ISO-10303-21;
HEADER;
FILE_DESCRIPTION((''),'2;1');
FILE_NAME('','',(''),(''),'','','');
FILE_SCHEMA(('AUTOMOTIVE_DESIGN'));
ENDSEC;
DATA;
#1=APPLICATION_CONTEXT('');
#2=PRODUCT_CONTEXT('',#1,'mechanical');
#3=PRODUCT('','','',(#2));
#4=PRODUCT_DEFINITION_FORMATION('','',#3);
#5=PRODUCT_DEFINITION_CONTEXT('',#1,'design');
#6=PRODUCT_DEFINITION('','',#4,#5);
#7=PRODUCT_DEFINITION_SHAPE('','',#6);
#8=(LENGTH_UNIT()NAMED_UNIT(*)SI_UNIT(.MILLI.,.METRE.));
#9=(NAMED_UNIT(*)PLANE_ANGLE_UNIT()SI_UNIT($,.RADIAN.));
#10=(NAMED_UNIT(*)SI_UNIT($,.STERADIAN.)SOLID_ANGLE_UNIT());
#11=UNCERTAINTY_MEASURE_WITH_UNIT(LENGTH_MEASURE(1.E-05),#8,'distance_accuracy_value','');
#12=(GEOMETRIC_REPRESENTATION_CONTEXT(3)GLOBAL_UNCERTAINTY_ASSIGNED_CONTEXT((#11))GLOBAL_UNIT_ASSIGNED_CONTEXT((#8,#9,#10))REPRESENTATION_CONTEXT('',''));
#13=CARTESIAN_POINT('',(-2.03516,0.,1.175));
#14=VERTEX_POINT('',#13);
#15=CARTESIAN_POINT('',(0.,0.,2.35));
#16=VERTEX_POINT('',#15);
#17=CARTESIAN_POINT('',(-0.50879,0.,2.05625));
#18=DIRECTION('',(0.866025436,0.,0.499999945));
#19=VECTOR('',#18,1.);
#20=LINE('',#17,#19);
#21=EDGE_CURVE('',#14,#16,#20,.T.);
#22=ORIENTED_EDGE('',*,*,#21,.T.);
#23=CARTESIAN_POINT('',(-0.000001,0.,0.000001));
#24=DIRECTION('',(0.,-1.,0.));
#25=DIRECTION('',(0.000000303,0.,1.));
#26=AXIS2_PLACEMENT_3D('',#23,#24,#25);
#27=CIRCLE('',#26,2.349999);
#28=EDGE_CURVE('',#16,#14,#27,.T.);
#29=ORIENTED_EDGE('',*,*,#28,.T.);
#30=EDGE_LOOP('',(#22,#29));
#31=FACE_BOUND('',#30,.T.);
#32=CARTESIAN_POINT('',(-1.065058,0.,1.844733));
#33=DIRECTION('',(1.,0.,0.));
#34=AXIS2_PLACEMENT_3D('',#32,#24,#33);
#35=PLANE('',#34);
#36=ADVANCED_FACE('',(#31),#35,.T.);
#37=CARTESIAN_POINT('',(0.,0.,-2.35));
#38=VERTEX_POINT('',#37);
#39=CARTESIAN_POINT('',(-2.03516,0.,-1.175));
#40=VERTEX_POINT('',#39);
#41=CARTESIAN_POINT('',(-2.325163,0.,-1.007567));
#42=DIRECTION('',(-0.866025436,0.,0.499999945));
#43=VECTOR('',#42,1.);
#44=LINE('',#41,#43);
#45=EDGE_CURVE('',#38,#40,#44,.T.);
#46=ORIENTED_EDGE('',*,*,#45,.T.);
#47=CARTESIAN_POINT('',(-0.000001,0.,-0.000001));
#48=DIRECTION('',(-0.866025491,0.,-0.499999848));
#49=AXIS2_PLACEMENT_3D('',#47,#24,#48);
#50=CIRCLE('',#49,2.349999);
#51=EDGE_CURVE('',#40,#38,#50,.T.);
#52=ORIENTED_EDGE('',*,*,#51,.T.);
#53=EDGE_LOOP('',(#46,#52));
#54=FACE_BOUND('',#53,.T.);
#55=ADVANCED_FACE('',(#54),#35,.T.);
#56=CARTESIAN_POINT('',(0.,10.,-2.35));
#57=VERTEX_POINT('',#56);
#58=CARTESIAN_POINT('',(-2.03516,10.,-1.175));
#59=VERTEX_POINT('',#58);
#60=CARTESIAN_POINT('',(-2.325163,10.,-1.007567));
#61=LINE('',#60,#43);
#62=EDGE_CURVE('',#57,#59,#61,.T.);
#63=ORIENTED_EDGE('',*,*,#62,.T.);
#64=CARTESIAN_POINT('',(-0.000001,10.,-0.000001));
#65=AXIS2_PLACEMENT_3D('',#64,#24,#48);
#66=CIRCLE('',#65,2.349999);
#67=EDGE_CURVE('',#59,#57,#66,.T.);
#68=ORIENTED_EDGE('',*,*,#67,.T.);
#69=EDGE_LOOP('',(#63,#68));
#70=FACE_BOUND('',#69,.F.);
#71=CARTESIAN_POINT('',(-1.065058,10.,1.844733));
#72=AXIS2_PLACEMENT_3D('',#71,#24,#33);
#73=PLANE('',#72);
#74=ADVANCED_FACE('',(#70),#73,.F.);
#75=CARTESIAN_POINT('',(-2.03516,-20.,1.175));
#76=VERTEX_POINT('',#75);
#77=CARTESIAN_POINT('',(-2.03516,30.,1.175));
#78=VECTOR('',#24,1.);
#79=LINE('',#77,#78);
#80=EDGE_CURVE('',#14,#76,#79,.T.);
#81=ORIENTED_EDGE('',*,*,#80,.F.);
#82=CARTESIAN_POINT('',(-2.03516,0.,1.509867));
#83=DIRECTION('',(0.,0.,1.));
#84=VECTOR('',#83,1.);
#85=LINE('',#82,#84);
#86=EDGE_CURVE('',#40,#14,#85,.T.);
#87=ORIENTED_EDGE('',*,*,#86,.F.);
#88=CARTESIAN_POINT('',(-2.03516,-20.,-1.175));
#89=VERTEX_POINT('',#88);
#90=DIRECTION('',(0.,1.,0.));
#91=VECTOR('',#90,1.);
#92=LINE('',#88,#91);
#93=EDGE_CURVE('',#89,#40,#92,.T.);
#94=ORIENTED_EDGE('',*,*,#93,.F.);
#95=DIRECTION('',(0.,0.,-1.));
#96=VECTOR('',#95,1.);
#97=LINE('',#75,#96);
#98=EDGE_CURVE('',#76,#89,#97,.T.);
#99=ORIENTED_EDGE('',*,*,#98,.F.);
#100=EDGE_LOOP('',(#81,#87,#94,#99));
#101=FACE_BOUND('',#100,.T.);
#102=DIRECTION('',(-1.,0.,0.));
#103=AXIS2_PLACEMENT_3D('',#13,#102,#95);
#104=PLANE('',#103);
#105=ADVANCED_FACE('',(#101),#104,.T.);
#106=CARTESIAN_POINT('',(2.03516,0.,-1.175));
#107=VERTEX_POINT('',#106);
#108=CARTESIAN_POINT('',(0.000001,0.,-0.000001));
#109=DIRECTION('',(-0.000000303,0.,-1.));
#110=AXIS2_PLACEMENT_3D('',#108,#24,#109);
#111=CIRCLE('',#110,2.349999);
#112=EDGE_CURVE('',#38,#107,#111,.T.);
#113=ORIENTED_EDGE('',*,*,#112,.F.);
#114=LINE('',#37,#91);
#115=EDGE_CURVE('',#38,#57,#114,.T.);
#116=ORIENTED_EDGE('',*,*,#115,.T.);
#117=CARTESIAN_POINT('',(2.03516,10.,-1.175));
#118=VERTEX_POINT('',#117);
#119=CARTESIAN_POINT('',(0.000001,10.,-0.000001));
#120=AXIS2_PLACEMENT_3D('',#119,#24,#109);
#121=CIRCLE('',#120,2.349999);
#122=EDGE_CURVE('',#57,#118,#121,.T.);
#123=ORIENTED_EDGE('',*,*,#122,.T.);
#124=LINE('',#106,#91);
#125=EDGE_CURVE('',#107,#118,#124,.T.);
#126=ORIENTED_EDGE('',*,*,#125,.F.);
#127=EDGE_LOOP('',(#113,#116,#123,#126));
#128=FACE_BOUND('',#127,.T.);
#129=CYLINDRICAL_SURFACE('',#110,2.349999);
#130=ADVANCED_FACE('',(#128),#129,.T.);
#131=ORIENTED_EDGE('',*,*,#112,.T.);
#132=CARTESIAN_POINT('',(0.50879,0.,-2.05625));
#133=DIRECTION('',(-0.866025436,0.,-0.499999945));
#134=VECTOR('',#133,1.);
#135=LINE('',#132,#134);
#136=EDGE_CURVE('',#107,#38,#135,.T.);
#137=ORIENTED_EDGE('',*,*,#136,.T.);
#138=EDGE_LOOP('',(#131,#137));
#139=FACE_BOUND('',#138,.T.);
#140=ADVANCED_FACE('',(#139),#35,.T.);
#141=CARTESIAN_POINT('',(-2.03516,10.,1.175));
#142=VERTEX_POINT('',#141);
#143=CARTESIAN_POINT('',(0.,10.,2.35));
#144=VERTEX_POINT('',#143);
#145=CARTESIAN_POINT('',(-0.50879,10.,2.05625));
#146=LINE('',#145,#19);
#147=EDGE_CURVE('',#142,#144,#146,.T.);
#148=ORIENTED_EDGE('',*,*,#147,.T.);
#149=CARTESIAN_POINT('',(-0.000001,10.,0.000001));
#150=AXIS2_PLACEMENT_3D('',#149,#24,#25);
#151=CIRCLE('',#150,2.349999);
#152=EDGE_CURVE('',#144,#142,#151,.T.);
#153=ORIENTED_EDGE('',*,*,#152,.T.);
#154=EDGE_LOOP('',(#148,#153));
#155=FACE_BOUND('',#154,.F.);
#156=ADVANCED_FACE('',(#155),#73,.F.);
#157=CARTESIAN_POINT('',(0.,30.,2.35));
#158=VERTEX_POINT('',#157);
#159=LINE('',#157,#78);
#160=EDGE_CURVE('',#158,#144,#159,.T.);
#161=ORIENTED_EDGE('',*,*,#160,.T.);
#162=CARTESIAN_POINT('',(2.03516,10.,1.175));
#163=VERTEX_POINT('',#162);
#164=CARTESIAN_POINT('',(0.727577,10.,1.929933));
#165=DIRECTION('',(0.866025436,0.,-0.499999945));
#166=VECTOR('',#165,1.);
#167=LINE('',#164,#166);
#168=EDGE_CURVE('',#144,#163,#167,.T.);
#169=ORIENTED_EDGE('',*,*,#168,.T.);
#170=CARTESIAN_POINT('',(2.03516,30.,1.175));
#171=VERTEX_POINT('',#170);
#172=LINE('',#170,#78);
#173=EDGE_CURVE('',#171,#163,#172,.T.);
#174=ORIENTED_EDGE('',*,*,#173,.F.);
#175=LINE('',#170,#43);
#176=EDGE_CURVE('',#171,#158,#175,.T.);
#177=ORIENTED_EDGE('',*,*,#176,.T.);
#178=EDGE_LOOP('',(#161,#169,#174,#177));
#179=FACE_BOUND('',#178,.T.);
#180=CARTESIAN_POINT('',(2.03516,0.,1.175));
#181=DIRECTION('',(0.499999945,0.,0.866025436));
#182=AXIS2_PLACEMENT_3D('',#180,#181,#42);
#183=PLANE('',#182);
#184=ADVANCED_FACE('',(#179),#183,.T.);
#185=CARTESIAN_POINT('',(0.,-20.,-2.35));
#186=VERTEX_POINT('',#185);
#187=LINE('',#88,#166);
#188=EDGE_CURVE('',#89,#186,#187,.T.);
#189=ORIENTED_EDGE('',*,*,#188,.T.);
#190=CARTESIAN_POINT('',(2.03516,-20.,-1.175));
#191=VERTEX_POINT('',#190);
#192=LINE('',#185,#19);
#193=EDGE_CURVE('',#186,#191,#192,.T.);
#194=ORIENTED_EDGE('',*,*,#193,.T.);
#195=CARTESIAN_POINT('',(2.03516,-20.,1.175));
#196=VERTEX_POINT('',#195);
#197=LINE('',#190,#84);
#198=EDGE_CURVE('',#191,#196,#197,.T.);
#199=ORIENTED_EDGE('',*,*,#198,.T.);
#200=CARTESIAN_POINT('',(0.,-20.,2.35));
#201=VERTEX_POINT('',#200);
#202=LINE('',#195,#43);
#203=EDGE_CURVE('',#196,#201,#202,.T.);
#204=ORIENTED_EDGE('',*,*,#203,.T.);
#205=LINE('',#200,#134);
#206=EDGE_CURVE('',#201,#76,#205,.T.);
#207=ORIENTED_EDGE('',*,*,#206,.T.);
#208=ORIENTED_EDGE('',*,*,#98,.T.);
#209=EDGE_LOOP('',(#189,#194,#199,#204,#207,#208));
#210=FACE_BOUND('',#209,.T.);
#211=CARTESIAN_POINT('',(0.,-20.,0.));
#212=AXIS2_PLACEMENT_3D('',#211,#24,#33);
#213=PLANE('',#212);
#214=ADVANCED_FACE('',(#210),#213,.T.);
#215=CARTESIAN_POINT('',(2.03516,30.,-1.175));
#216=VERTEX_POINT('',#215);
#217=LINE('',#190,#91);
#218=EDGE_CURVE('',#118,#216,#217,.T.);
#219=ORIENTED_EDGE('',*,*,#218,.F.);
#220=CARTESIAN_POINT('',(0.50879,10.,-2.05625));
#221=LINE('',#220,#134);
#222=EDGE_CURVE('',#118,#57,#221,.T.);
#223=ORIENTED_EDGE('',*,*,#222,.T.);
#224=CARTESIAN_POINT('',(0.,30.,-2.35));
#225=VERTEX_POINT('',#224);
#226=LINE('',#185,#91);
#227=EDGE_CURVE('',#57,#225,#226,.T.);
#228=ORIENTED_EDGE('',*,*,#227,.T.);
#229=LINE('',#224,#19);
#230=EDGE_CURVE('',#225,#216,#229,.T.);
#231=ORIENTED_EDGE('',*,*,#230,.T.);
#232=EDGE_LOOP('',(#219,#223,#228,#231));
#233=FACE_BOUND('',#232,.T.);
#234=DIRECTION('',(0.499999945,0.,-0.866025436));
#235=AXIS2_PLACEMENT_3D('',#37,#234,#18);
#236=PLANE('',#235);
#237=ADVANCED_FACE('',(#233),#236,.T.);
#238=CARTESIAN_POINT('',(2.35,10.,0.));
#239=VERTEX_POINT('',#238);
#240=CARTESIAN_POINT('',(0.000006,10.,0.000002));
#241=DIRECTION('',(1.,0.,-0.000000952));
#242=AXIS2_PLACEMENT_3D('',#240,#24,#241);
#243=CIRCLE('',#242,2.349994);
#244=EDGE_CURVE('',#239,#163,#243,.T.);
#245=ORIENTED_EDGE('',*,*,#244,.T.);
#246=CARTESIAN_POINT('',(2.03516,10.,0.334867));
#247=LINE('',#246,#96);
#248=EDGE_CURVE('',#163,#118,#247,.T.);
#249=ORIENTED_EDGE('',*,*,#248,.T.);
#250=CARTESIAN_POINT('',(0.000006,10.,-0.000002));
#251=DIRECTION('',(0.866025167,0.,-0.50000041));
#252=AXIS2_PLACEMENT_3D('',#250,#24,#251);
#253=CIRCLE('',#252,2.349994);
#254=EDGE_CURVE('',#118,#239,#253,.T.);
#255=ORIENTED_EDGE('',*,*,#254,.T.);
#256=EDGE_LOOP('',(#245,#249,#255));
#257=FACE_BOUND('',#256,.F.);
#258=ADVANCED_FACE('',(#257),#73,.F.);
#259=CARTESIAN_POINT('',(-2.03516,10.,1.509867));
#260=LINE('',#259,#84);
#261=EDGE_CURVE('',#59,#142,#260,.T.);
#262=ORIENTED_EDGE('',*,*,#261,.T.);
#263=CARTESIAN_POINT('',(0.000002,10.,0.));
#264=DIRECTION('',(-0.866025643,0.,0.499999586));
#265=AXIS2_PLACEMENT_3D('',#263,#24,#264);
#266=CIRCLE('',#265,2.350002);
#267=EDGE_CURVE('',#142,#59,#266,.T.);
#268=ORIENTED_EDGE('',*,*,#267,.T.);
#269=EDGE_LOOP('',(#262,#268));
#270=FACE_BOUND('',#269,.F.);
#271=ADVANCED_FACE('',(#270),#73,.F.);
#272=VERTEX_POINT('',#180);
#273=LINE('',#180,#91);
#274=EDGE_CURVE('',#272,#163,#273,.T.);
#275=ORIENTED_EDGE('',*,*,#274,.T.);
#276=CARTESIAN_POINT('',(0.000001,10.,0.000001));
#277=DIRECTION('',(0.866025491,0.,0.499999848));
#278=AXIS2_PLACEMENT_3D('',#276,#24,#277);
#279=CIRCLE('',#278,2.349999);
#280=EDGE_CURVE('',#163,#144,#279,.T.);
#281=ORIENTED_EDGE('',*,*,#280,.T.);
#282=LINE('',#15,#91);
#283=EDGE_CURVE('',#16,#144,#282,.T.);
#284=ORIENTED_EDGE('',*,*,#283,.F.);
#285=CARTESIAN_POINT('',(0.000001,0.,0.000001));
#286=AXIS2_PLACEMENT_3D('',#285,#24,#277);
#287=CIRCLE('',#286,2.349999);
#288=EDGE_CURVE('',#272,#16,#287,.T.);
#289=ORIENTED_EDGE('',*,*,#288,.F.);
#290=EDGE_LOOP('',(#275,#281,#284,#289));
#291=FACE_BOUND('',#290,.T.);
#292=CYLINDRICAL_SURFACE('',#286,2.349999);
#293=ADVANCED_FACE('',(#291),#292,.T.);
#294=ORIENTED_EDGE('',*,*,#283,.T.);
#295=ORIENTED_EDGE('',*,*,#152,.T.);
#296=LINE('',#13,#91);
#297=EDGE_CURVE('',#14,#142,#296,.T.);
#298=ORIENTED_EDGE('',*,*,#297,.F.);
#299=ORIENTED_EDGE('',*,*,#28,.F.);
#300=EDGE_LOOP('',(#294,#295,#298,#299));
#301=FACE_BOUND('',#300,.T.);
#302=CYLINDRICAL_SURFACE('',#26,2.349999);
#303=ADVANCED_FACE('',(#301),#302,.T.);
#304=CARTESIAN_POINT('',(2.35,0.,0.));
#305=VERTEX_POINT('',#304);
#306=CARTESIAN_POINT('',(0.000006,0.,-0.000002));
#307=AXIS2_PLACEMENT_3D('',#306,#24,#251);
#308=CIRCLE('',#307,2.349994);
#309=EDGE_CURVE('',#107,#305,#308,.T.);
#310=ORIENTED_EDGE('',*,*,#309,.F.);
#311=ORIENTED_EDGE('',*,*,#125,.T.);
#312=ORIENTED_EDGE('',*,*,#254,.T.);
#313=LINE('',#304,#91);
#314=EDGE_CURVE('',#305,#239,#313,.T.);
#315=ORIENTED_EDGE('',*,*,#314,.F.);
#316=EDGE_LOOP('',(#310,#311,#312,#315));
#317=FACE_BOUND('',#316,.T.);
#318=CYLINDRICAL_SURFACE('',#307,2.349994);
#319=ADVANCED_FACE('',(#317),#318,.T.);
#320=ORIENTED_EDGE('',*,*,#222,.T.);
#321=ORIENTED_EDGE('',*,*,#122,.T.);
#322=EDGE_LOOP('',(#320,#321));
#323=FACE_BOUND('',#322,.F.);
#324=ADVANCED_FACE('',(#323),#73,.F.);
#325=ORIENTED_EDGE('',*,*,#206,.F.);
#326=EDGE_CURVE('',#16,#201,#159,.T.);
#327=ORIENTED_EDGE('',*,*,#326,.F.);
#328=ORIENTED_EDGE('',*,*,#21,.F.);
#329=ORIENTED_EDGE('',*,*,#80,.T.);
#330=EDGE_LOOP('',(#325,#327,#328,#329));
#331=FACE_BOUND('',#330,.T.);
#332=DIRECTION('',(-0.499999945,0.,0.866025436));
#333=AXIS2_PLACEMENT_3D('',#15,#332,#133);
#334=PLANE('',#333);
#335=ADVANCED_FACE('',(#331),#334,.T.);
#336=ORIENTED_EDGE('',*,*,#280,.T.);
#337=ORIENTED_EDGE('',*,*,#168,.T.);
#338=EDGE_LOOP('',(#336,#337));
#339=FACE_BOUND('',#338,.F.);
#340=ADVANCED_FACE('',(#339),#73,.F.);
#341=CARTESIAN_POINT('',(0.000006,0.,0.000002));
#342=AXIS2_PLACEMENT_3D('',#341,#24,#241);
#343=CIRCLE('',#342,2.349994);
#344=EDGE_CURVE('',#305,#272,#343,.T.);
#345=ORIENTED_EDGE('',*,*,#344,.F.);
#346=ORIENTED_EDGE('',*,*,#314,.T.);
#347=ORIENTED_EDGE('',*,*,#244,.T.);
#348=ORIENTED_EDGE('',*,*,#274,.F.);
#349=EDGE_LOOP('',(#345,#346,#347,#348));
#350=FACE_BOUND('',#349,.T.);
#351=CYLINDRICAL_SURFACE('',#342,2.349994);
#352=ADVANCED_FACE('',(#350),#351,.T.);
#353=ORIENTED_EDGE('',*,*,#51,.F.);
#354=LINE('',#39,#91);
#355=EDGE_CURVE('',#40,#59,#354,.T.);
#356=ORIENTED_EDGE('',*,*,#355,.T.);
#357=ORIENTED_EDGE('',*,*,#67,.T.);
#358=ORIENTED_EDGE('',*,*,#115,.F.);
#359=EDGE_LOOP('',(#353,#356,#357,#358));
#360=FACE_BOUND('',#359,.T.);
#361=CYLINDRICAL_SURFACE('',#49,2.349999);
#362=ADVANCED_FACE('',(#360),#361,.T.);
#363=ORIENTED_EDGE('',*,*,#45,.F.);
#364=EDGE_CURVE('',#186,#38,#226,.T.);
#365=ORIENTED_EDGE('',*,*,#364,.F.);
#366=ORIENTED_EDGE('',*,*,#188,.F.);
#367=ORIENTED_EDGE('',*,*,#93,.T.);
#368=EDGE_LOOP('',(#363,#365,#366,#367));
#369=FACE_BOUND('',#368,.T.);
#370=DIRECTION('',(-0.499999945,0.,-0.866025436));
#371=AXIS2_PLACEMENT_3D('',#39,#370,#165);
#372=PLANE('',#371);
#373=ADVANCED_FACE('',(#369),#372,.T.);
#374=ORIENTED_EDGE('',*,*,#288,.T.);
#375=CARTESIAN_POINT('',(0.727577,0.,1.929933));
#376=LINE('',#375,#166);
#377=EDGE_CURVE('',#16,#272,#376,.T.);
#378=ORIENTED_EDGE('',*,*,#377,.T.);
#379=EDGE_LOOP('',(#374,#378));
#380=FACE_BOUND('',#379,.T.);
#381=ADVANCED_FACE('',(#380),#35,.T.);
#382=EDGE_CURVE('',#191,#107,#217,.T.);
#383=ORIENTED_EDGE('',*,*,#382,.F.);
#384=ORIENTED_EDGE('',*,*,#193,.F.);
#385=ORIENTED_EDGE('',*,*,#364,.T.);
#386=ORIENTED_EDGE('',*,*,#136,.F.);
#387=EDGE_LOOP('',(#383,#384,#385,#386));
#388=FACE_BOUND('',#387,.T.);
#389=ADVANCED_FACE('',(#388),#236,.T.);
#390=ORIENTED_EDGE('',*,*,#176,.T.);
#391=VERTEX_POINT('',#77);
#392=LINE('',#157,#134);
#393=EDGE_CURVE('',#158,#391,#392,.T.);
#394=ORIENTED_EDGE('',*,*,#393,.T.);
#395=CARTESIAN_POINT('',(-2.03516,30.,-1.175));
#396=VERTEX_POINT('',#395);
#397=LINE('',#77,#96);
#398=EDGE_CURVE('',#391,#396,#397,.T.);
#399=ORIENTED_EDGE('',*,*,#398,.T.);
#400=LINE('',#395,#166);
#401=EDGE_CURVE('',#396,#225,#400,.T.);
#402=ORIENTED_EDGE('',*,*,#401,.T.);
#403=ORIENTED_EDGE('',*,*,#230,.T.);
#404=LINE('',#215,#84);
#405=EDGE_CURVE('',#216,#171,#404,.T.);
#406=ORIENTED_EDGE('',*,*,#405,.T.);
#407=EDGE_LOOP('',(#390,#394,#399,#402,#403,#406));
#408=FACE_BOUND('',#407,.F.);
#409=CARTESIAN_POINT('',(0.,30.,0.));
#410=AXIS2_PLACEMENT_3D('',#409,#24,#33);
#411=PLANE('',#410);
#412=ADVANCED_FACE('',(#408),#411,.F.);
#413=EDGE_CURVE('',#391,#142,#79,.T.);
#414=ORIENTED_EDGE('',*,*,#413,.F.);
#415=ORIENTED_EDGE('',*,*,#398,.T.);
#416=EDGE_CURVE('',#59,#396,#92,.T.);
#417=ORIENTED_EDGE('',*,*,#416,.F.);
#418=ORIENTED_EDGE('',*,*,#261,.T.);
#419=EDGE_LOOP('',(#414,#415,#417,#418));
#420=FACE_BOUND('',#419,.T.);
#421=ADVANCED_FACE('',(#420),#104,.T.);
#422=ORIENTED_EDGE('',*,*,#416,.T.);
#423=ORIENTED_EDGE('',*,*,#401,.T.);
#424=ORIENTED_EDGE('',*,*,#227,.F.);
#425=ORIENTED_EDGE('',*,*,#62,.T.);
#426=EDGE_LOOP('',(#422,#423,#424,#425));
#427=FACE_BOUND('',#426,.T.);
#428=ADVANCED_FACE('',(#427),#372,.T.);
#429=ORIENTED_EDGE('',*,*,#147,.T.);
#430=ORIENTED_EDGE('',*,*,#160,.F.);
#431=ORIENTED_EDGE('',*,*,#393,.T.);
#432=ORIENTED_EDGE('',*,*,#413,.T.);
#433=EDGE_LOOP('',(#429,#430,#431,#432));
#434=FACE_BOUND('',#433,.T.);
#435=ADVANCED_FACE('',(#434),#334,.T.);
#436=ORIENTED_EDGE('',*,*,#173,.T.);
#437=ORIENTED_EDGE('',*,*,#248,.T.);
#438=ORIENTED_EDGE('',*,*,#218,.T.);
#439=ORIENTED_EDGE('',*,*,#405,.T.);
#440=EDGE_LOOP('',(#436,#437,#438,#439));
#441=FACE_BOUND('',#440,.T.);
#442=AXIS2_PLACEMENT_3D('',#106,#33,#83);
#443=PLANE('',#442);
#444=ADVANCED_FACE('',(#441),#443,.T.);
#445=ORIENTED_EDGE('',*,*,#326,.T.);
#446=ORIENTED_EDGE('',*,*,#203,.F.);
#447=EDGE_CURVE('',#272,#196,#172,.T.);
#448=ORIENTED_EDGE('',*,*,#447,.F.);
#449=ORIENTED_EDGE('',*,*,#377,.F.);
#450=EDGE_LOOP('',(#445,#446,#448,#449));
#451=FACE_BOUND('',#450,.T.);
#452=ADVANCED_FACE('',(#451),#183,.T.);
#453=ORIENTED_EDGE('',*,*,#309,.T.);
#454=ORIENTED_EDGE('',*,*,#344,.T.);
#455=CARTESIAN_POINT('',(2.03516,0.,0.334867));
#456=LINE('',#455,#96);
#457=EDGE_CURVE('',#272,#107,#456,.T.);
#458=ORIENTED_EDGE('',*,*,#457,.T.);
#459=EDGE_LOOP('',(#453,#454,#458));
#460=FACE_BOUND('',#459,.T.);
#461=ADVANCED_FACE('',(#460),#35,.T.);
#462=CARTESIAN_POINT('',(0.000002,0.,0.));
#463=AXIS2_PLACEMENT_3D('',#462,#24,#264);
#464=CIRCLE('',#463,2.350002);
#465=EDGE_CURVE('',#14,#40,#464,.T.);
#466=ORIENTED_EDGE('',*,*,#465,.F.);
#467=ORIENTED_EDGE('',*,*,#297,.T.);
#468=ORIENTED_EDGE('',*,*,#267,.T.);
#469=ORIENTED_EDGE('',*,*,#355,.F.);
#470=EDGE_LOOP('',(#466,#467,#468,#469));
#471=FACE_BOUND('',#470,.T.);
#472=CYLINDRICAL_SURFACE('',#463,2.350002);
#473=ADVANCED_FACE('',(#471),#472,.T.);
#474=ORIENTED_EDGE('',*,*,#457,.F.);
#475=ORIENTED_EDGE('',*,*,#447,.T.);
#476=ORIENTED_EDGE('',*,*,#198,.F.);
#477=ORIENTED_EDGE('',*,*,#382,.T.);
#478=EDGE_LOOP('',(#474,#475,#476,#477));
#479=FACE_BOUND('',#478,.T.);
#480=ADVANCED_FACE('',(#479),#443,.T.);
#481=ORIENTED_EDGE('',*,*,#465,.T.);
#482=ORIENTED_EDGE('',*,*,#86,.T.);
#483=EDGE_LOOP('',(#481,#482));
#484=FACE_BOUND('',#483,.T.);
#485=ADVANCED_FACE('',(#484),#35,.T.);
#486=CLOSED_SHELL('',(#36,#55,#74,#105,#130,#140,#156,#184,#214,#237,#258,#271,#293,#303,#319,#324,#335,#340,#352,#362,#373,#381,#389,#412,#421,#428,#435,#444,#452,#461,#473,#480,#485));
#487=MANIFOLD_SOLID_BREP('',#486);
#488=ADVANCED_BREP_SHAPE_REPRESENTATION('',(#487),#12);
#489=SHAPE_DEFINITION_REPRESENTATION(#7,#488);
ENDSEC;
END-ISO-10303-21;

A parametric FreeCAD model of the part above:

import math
import FreeCAD as App
import Part
import Sketcher
from FreeCAD import Vector
Q = App.Units.Quantity

doc = App.newDocument("Part")
body = doc.addObject("PartDesign::Body", "Body")

sketch1 = body.newObject("Sketcher::SketchObject", "Sketch")
sketch1.AttachmentSupport = (doc.getObject("XZ_Plane"), [""])
sketch1.MapMode = "FlatFace"
sketch1.addGeometry([
    Part.LineSegment(Vector(2, -1.2, 0), Vector(2, 1.2, 0)),
    Part.LineSegment(Vector(2, 1.2, 0), Vector(0, 2.4, 0)),
    Part.LineSegment(Vector(0, 2.4, 0), Vector(-2, 1.2, 0)),
    Part.LineSegment(Vector(-2, 1.2, 0), Vector(-2, -1.2, 0)),
    Part.LineSegment(Vector(-2, -1.2, 0), Vector(0, -2.4, 0)),
    Part.LineSegment(Vector(0, -2.4, 0), Vector(2, -1.2, 0)),
], False)
sketch1.addConstraint([
    Sketcher.Constraint("Coincident", 0, 2, 1, 1),
    Sketcher.Constraint("Coincident", 1, 2, 2, 1),
    Sketcher.Constraint("Coincident", 2, 2, 3, 1),
    Sketcher.Constraint("Coincident", 3, 2, 4, 1),
    Sketcher.Constraint("Coincident", 4, 2, 5, 1),
    Sketcher.Constraint("Coincident", 5, 2, 0, 1),
    Sketcher.Constraint("Vertical", 0),
    Sketcher.Constraint("Vertical", 3),
    Sketcher.Constraint("Symmetric", 0, 2, 3, 2, -1, 1),
    Sketcher.Constraint("Symmetric", 1, 2, 4, 2, -1, 1),
    Sketcher.Constraint("PointOnObject", 1, 2, -2),
    Sketcher.Constraint("Parallel", 2, 5),
    Sketcher.Constraint("Horizontal", 0, 2, 2, 2),
    Sketcher.Constraint("Angle", 1, Q("150.000004 deg")),
    Sketcher.Constraint("DistanceY", 0, 1, 0, 2, 2.35),
    Sketcher.Constraint("DistanceY", 4, 2, 1, 2, 4.7),
])
pad1 = body.newObject("PartDesign::Pad", "Pad")
pad1.Profile = sketch1
pad1.Type = "TwoLengths"
pad1.Length = 20
pad1.Length2 = 30

sketch2 = body.newObject("Sketcher::SketchObject", "Sketch001")
sketch2.AttachmentSupport = (doc.getObject("XZ_Plane"), [""])
sketch2.MapMode = "FlatFace"
sketch2.addGeometry([
    Part.ArcOfCircle(Part.Circle(Vector(0, 0, 0), Vector(0, 0, 1), 2.3), math.radians(90), math.radians(150)),
    Part.ArcOfCircle(Part.Circle(Vector(0, 0, 0), Vector(0, 0, 1), 2.4), math.radians(150), math.radians(210)),
    Part.ArcOfCircle(Part.Circle(Vector(0, 0, 0), Vector(0, 0, 1), 2.3), math.radians(-150), math.radians(-90)),
    Part.ArcOfCircle(Part.Circle(Vector(0, 0, 0), Vector(0, 0, 1), 2.3), math.radians(-90), math.radians(-30)),
    Part.ArcOfCircle(Part.Circle(Vector(0, 0, 0), Vector(0, 0, 1), 2.3), math.radians(-30), math.radians(0)),
    Part.ArcOfCircle(Part.Circle(Vector(0, 0, 0), Vector(0, 0, 1), 2.3), math.radians(0), math.radians(30)),
    Part.ArcOfCircle(Part.Circle(Vector(0, 0, 0), Vector(0, 0, 1), 2.3), math.radians(30), math.radians(90)),
], False)
sketch2.addConstraint([
    Sketcher.Constraint("Tangent", 0, 2, 1, 1),
    Sketcher.Constraint("Tangent", 1, 2, 2, 1),
    Sketcher.Constraint("Tangent", 2, 2, 3, 1),
    Sketcher.Constraint("Tangent", 3, 2, 4, 1),
    Sketcher.Constraint("Tangent", 4, 2, 5, 1),
    Sketcher.Constraint("Tangent", 5, 2, 6, 1),
    Sketcher.Constraint("Tangent", 6, 2, 0, 1),
    Sketcher.Constraint("Coincident", 0, 3, -1, 1),
    Sketcher.Constraint("Coincident", 2, 3, -1, 1),
    Sketcher.Constraint("Coincident", 4, 3, -1, 1),
    Sketcher.Constraint("PointOnObject", 2, 2, -2),
    Sketcher.Constraint("PointOnObject", 4, 2, -1),
    Sketcher.Constraint("PointOnObject", 6, 2, -2),
    Sketcher.Constraint("Horizontal", 1, 2, 3, 2),
    Sketcher.Constraint("Horizontal", 0, 2, 5, 2),
    Sketcher.Constraint("Vertical", 0, 2, 1, 2),
    Sketcher.Constraint("Radius", 0, 2.349999),
    Sketcher.Constraint("DistanceY", 1, 2, 0, 2, 2.35),
])
pad2 = body.newObject("PartDesign::Pad", "Pad001")
pad2.Profile = sketch2
pad2.Length = 10
pad2.Reversed = True

doc.recompute()
